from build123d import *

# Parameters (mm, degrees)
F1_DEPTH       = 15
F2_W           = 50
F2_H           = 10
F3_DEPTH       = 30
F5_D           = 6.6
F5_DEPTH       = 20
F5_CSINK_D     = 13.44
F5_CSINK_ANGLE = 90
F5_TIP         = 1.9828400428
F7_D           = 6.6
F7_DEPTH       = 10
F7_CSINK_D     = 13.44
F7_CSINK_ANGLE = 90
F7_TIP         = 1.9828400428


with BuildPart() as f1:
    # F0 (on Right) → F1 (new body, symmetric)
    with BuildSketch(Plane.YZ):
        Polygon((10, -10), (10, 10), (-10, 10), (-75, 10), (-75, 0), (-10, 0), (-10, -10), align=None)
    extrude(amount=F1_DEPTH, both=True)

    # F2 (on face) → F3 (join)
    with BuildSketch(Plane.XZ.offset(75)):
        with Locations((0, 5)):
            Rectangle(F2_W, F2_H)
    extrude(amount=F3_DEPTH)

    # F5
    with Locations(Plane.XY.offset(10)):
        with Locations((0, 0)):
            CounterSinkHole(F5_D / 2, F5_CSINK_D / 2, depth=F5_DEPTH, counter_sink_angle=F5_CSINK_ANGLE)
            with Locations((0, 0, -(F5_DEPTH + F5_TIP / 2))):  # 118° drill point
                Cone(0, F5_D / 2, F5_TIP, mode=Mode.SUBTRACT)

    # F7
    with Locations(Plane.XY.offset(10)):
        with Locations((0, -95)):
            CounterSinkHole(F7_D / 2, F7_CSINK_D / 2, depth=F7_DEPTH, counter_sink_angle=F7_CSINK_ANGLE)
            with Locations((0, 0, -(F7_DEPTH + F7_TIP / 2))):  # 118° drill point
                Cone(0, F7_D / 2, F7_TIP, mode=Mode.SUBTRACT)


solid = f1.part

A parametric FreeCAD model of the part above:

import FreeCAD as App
import Part
import Sketcher
from FreeCAD import Vector

doc = App.newDocument("Part")
params = doc.addObject("Spreadsheet::Sheet", "Params")
for row, (alias, value) in enumerate([
    ("sketch1_width", "85 mm"),
    ("sketch1_width2", "65 mm"),
    ("pad1_length", "30 mm"),
    ("sketch2_width", "50 mm"),
    ("sketch2_height", "10 mm"),
    ("pad2_length", "30 mm"),
    ("sketch3_diameter", "6.6 mm"),
    ("hole_diameter", "6.6 mm"),
    ("hole_depth", "20 mm"),
    ("hole_csink_diameter", "13.44 mm"),
    ("sketch4_diameter", "6.6 mm"),
    ("hole2_diameter", "6.6 mm"),
    ("hole2_depth", "10 mm"),
    ("hole2_csink_diameter", "13.44 mm"),
], start=1):
    params.set(f"A{row}", alias)
    params.set(f"B{row}", "=" + value)
    params.setAlias(f"B{row}", alias)

body = doc.addObject("PartDesign::Body", "Body")

sketch1 = body.newObject("Sketcher::SketchObject", "Sketch")
sketch1.AttachmentSupport = (doc.getObject("YZ_Plane"), [""])
sketch1.MapMode = "FlatFace"
sketch1.addGeometry(Part.LineSegment(Vector(10, -10, 0), Vector(10, 10, 0)), False)
sketch1.addGeometry(Part.LineSegment(Vector(10, 10, 0), Vector(-75, 10, 0)), False)
sketch1.addGeometry(Part.LineSegment(Vector(-75, 10, 0), Vector(-75, 0, 0)), False)
sketch1.addGeometry(Part.LineSegment(Vector(-75, 0, 0), Vector(-10, 0, 0)), False)
sketch1.addGeometry(Part.LineSegment(Vector(-10, 0, 0), Vector(-10, -10, 0)), False)
sketch1.addGeometry(Part.LineSegment(Vector(-10, -10, 0), Vector(10, -10, 0)), False)
sketch1.addConstraint(Sketcher.Constraint("Coincident", 0, 2, 1, 1))
sketch1.addConstraint(Sketcher.Constraint("Coincident", 1, 2, 2, 1))
sketch1.addConstraint(Sketcher.Constraint("Coincident", 2, 2, 3, 1))
sketch1.addConstraint(Sketcher.Constraint("Coincident", 3, 2, 4, 1))
sketch1.addConstraint(Sketcher.Constraint("Coincident", 4, 2, 5, 1))
sketch1.addConstraint(Sketcher.Constraint("Coincident", 5, 2, 0, 1))
sketch1.addConstraint(Sketcher.Constraint("Vertical", 0))
sketch1.addConstraint(Sketcher.Constraint("Horizontal", 1))
sketch1.addConstraint(Sketcher.Constraint("Vertical", 2))
sketch1.addConstraint(Sketcher.Constraint("Horizontal", 3))
sketch1.addConstraint(Sketcher.Constraint("Vertical", 4))
sketch1.addConstraint(Sketcher.Constraint("Horizontal", 5))
sketch1.addConstraint(Sketcher.Constraint("Symmetric", 0, 2, 4, 2, -1, 1))
sketch1.addConstraint(Sketcher.Constraint("PointOnObject", 2, 2, -1))
sketch1.addConstraint(Sketcher.Constraint("Equal", 5, 0))
sketch1.addConstraint(Sketcher.Constraint("DistanceX", 1, 2, 1, 1, 85.0))
sketch1.addConstraint(Sketcher.Constraint("DistanceX", 3, 1, 3, 2, 65.0))
sketch1.setExpression("Constraints[15]", "Params.sketch1_width")
sketch1.setExpression("Constraints[16]", "Params.sketch1_width2")
pad1 = body.newObject("PartDesign::Pad", "Pad")
pad1.Profile = sketch1
pad1.setExpression("Length", "Params.pad1_length")
pad1.Midplane = True

sketch2 = body.newObject("Sketcher::SketchObject", "Sketch001")
sketch2.AttachmentSupport = (doc.getObject("XZ_Plane"), [""])
sketch2.MapMode = "FlatFace"
sketch2.AttachmentOffset = App.Placement(Vector(0, 0, 75), App.Rotation())
sketch2.addGeometry(Part.LineSegment(Vector(-25, 10, 0), Vector(-25, 0, 0)), False)
sketch2.addGeometry(Part.LineSegment(Vector(-25, 0, 0), Vector(25, 0, 0)), False)
sketch2.addGeometry(Part.LineSegment(Vector(25, 0, 0), Vector(25, 10, 0)), False)
sketch2.addGeometry(Part.LineSegment(Vector(25, 10, 0), Vector(-25, 10, 0)), False)
sketch2.addConstraint(Sketcher.Constraint("Coincident", 0, 2, 1, 1))
sketch2.addConstraint(Sketcher.Constraint("Coincident", 1, 2, 2, 1))
sketch2.addConstraint(Sketcher.Constraint("Coincident", 2, 2, 3, 1))
sketch2.addConstraint(Sketcher.Constraint("Coincident", 3, 2, 0, 1))
sketch2.addConstraint(Sketcher.Constraint("Vertical", 0))
sketch2.addConstraint(Sketcher.Constraint("Horizontal", 1))
sketch2.addConstraint(Sketcher.Constraint("Vertical", 2))
sketch2.addConstraint(Sketcher.Constraint("Horizontal", 3))
sketch2.addConstraint(Sketcher.Constraint("Symmetric", 0, 2, 1, 2, -1, 1))
sketch2.addConstraint(Sketcher.Constraint("DistanceX", 1, 1, 1, 2, 50.0))
sketch2.addConstraint(Sketcher.Constraint("DistanceY", 0, 2, 0, 1, 10.0))
sketch2.setExpression("Constraints[9]", "Params.sketch2_width")
sketch2.setExpression("Constraints[10]", "Params.sketch2_height")
pad2 = body.newObject("PartDesign::Pad", "Pad001")
pad2.Profile = sketch2
pad2.setExpression("Length", "Params.pad2_length")

sketch3 = body.newObject("Sketcher::SketchObject", "Sketch002")
sketch3.AttachmentSupport = (doc.getObject("XY_Plane"), [""])
sketch3.MapMode = "FlatFace"
sketch3.AttachmentOffset = App.Placement(Vector(0, 0, 10), App.Rotation())
sketch3.addGeometry(Part.Circle(Vector(0, 0, 0), Vector(0, 0, 1), 3.3), False)
sketch3.addConstraint(Sketcher.Constraint("Coincident", 0, 3, -1, 1))
sketch3.addConstraint(Sketcher.Constraint("Diameter", 0, 6.6))
sketch3.setExpression("Constraints[1]", "Params.sketch3_diameter")
doc.recompute()
hole = body.newObject("PartDesign::Hole", "Hole")
hole.Profile = sketch3
hole.ThreadType = "None"
hole.setExpression("Diameter", "Params.hole_diameter")
hole.DepthType = "Dimension"
hole.setExpression("Depth", "Params.hole_depth")
hole.DrillPoint = "Angled"
hole.DrillPointAngle = 118
hole.HoleCutType = "Countersink"
hole.setExpression("HoleCutDiameter", "Params.hole_csink_diameter")
hole.HoleCutCountersinkAngle = 90

sketch4 = body.newObject("Sketcher::SketchObject", "Sketch003")
sketch4.AttachmentSupport = (doc.getObject("XY_Plane"), [""])
sketch4.MapMode = "FlatFace"
sketch4.AttachmentOffset = App.Placement(Vector(0, 0, 10), App.Rotation())
sketch4.addGeometry(Part.Circle(Vector(0, -95, 0), Vector(0, 0, 1), 3.3), False)
sketch4.addConstraint(Sketcher.Constraint("PointOnObject", 0, 3, -2))
sketch4.addConstraint(Sketcher.Constraint("Diameter", 0, 6.6))
sketch4.addConstraint(Sketcher.Constraint("DistanceY", 0, 3, -1, 1, 95.0))
sketch4.setExpression("Constraints[1]", "Params.sketch4_diameter")
doc.recompute()
hole2 = body.newObject("PartDesign::Hole", "Hole001")
hole2.Profile = sketch4
hole2.ThreadType = "None"
hole2.setExpression("Diameter", "Params.hole2_diameter")
hole2.DepthType = "Dimension"
hole2.setExpression("Depth", "Params.hole2_depth")
hole2.DrillPoint = "Angled"
hole2.DrillPointAngle = 118
hole2.HoleCutType = "Countersink"
hole2.setExpression("HoleCutDiameter", "Params.hole2_csink_diameter")
hole2.HoleCutCountersinkAngle = 90

doc.recompute()
